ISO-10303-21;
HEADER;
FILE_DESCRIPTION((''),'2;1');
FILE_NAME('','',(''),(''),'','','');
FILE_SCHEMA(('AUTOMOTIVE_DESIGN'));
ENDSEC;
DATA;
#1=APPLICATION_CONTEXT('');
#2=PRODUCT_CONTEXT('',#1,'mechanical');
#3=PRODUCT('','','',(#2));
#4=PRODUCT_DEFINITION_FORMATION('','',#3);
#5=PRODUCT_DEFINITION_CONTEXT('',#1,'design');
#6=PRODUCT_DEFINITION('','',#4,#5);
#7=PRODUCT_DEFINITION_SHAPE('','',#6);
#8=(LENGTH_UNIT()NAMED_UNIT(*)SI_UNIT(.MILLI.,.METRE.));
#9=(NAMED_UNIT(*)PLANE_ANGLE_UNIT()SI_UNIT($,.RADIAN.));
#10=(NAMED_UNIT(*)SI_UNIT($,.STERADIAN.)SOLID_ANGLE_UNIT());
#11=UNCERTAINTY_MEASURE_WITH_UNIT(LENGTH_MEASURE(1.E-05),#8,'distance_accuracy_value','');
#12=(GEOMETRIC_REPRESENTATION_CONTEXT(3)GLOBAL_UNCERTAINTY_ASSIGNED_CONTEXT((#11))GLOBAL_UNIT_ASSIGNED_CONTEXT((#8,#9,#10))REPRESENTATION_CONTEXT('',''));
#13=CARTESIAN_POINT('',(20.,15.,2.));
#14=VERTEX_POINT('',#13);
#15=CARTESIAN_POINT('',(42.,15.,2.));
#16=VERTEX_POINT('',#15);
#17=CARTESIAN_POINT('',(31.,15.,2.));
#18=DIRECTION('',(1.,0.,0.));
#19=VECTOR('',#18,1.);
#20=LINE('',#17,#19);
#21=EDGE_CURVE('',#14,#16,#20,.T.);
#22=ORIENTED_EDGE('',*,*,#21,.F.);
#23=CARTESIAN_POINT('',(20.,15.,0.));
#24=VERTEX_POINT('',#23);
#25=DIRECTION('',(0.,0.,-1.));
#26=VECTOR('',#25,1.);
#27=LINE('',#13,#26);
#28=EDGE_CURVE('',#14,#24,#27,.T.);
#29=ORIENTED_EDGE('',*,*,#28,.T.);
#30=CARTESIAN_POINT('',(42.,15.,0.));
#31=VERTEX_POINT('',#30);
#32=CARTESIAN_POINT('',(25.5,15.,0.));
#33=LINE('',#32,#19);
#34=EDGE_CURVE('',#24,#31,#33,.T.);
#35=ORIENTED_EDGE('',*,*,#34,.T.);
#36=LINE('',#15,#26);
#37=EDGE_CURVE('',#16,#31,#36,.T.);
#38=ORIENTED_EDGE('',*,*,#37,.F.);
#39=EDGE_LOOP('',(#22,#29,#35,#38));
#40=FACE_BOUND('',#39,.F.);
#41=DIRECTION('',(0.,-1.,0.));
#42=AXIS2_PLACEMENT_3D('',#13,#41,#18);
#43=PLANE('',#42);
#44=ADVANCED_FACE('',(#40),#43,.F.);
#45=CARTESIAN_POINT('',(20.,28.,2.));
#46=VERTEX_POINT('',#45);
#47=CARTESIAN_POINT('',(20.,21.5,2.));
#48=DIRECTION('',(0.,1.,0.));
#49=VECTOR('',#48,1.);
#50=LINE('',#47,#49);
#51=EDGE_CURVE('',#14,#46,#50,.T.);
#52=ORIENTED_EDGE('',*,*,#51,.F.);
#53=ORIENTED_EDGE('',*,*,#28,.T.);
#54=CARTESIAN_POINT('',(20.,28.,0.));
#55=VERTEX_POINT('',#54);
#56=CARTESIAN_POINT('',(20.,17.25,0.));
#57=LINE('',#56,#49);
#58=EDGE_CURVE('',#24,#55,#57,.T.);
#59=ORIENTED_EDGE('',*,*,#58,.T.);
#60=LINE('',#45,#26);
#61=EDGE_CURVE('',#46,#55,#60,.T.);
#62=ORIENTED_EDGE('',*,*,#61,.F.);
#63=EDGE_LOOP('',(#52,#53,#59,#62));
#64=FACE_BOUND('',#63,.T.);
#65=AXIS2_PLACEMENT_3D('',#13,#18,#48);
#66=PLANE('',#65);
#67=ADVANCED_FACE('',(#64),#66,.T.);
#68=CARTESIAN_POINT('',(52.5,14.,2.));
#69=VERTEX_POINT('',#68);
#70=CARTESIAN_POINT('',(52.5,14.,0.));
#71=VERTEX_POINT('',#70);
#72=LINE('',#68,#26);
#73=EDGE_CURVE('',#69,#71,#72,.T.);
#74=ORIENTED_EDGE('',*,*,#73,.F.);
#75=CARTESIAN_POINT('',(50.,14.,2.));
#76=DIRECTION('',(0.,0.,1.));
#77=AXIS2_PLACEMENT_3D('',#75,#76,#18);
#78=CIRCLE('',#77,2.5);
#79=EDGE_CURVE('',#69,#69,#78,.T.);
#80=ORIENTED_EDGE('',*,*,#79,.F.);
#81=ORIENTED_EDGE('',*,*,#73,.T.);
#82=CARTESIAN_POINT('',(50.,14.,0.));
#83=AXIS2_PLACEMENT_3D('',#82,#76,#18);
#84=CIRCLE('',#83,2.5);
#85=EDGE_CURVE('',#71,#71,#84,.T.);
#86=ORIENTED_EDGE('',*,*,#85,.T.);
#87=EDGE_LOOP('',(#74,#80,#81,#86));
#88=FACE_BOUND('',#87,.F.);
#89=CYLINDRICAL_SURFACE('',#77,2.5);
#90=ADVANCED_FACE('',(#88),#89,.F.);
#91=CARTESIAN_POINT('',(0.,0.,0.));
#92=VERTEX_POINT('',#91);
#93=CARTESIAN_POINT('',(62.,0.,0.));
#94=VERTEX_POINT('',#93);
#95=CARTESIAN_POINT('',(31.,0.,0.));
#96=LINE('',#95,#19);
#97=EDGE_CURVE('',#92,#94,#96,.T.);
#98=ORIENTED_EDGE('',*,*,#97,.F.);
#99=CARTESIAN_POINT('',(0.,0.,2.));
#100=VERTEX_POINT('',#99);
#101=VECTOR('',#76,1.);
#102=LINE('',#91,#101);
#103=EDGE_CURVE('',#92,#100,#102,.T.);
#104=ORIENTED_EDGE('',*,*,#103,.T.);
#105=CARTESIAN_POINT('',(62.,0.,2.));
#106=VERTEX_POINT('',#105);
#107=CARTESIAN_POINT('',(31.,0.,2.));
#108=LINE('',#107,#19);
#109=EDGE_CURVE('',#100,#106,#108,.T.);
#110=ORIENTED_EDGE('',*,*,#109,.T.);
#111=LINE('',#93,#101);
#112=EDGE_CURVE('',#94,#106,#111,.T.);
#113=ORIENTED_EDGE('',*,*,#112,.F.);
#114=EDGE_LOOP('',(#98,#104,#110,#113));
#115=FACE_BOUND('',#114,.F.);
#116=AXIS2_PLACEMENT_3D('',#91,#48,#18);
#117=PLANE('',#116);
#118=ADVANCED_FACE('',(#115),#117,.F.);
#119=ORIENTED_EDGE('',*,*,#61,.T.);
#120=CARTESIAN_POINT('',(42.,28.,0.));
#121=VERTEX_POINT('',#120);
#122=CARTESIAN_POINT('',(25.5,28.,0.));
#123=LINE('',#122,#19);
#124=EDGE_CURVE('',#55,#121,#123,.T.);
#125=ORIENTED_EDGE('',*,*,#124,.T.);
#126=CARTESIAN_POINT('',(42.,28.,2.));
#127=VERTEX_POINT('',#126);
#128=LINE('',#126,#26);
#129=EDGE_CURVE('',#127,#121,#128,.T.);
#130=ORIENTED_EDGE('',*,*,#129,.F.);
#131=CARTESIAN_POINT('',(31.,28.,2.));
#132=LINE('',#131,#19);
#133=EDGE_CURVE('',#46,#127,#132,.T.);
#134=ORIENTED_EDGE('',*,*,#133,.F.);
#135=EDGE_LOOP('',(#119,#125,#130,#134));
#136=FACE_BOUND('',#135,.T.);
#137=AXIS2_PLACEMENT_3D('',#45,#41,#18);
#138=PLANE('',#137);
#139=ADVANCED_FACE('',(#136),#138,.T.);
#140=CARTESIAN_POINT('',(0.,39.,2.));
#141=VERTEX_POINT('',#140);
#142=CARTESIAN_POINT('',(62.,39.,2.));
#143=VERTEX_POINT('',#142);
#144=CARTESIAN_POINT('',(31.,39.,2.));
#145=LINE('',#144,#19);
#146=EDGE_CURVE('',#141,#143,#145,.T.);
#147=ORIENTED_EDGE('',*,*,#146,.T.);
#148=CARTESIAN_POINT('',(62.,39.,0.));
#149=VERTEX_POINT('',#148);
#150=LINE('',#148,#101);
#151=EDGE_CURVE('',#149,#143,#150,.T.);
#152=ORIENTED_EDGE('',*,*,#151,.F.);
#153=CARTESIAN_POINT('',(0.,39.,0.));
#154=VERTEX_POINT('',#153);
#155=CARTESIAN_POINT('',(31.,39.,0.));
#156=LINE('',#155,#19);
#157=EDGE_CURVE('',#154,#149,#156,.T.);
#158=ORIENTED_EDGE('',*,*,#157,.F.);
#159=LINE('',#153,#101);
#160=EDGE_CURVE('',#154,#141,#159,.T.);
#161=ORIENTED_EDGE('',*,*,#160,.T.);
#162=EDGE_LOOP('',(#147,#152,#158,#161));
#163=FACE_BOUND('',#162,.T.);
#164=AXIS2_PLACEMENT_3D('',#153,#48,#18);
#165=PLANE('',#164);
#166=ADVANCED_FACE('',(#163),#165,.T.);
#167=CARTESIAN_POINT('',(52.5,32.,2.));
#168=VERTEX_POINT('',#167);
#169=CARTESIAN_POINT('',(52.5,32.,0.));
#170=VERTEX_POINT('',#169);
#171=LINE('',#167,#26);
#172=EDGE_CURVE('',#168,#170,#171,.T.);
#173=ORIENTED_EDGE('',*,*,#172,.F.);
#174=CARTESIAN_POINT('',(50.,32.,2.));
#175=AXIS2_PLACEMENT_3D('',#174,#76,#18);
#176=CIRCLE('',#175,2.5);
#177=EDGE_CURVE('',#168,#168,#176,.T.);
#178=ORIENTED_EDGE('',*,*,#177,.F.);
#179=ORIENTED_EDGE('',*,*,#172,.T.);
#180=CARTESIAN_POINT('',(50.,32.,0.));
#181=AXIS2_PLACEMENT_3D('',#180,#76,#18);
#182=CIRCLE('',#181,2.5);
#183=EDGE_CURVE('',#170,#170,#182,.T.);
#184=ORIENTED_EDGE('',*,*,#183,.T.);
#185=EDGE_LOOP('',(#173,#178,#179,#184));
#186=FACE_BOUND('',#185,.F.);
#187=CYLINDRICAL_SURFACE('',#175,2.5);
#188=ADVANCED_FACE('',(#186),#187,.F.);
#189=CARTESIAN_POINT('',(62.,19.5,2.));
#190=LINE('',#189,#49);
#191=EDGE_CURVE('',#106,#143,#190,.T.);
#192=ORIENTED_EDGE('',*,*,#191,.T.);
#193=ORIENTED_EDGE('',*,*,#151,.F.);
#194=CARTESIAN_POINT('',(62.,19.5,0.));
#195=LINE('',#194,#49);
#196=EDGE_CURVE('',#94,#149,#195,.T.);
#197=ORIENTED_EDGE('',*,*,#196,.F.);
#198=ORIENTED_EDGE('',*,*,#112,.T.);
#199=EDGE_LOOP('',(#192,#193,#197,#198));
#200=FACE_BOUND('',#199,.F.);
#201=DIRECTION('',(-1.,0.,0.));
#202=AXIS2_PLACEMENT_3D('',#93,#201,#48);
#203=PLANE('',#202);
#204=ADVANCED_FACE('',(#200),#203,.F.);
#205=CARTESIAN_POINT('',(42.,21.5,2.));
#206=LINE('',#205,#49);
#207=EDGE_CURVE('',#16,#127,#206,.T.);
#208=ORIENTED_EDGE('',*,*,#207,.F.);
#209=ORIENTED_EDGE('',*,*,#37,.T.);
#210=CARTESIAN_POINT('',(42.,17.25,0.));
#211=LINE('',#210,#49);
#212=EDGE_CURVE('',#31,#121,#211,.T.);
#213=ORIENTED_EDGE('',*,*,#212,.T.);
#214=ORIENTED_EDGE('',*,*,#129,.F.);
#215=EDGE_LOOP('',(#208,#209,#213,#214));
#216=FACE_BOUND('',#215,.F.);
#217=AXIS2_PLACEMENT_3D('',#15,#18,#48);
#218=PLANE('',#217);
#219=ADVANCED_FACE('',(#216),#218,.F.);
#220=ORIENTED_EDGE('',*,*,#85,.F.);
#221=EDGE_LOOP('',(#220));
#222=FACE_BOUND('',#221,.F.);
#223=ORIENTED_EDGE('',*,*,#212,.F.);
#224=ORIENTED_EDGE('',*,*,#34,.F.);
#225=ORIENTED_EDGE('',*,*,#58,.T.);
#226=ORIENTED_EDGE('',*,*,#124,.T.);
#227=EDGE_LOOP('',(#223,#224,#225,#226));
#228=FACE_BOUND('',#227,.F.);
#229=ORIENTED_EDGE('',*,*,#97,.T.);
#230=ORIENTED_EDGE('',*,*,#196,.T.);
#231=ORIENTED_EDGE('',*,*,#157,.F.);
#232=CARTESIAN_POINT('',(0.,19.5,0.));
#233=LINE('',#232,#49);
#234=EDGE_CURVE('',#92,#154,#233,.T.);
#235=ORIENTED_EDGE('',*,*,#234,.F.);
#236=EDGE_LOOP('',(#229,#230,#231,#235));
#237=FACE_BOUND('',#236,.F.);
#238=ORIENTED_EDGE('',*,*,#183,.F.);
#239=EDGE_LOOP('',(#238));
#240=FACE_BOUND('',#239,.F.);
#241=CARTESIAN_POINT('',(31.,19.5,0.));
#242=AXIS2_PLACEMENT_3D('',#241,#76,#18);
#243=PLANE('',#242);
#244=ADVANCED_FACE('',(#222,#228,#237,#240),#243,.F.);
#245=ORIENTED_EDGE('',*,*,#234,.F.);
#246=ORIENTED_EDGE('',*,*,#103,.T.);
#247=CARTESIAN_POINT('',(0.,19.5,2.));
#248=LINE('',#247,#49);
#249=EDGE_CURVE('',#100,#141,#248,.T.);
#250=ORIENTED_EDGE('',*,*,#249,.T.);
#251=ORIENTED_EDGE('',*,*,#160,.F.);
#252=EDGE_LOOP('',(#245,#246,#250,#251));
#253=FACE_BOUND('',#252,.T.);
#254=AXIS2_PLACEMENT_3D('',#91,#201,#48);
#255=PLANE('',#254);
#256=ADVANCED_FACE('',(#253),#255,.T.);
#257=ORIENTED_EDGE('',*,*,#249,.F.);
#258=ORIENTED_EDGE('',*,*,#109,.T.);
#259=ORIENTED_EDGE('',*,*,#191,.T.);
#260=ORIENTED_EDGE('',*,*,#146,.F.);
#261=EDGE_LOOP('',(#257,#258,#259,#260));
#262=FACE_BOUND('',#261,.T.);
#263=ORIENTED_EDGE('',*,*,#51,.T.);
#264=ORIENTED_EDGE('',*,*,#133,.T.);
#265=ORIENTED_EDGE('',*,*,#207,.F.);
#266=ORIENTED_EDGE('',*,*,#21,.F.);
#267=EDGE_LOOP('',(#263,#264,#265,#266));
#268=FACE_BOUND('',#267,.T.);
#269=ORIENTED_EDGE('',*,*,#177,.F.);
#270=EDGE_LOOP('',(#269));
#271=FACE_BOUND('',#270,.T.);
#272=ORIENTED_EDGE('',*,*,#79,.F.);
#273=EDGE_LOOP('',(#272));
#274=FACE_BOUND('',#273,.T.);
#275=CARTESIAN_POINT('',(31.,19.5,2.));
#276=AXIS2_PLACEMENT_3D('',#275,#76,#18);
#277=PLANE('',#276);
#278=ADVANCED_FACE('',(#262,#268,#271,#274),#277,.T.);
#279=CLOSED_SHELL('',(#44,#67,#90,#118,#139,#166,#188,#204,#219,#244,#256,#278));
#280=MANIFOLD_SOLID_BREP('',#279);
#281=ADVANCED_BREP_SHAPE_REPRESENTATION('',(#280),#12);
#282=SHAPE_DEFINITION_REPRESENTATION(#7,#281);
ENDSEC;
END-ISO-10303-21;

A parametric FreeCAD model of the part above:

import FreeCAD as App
import Part
import Sketcher
from FreeCAD import Vector

doc = App.newDocument("Part")
body = doc.addObject("PartDesign::Body", "Body")

sketch1 = doc.addObject("Sketcher::SketchObject", "Sketch")
body.addObject(sketch1)
sketch1.AttachmentSupport = (doc.XY_Plane, [""])
sketch1.MapMode = "FlatFace"
sketch1.addGeometry([
    Part.LineSegment(Vector(0, 39, 0), Vector(0, 0, 0)),
    Part.LineSegment(Vector(0, 0, 0), Vector(62, 0, 0)),
    Part.LineSegment(Vector(62, 0, 0), Vector(62, 39, 0)),
    Part.LineSegment(Vector(62, 39, 0), Vector(0, 39, 0)),
], False)
sketch1.addConstraint([
    Sketcher.Constraint("Coincident", 0, 2, 1, 1),
    Sketcher.Constraint("Coincident", 1, 2, 2, 1),
    Sketcher.Constraint("Coincident", 2, 2, 3, 1),
    Sketcher.Constraint("Coincident", 3, 2, 0, 1),
    Sketcher.Constraint("Vertical", 0),
    Sketcher.Constraint("Horizontal", 1),
    Sketcher.Constraint("Vertical", 2),
    Sketcher.Constraint("Horizontal", 3),
    Sketcher.Constraint("Coincident", 0, 2, -1, 1),
    Sketcher.Constraint("DistanceX", 1, 1, 1, 2, 62.0),
    Sketcher.Constraint("DistanceY", 0, 2, 0, 1, 39.0),
])
pad1 = doc.addObject("PartDesign::Pad", "Pad")
body.addObject(pad1)
pad1.Profile = sketch1
pad1.Length = 2

sketch2 = doc.addObject("Sketcher::SketchObject", "Sketch001")
body.addObject(sketch2)
sketch2.AttachmentSupport = (doc.XY_Plane, [""])
sketch2.MapMode = "FlatFace"
sketch2.AttachmentOffset = App.Placement(Vector(0, 0, 2), App.Rotation())
sketch2.addGeometry([
    Part.LineSegment(Vector(20, 28, 0), Vector(20, 15, 0)),
    Part.LineSegment(Vector(20, 15, 0), Vector(42, 15, 0)),
    Part.LineSegment(Vector(42, 15, 0), Vector(42, 28, 0)),
    Part.LineSegment(Vector(42, 28, 0), Vector(20, 28, 0)),
], False)
sketch2.addConstraint([
    Sketcher.Constraint("Coincident", 0, 2, 1, 1),
    Sketcher.Constraint("Coincident", 1, 2, 2, 1),
    Sketcher.Constraint("Coincident", 2, 2, 3, 1),
    Sketcher.Constraint("Coincident", 3, 2, 0, 1),
    Sketcher.Constraint("Vertical", 0),
    Sketcher.Constraint("Horizontal", 1),
    Sketcher.Constraint("Vertical", 2),
    Sketcher.Constraint("Horizontal", 3),
    Sketcher.Constraint("DistanceX", 1, 1, 1, 2, 22.0),
    Sketcher.Constraint("DistanceY", 0, 2, 0, 1, 13.0),
    Sketcher.Constraint("DistanceX", -1, 1, 0, 2, 20.0),
    Sketcher.Constraint("DistanceY", -1, 1, 0, 2, 15.0),
])
pocket1 = doc.addObject("PartDesign::Pocket", "Pocket")
body.addObject(pocket1)
pocket1.Profile = sketch2
pocket1.Type = "ThroughAll"

sketch3 = doc.addObject("Sketcher::SketchObject", "Sketch002")
body.addObject(sketch3)
sketch3.AttachmentSupport = (doc.XY_Plane, [""])
sketch3.MapMode = "FlatFace"
sketch3.AttachmentOffset = App.Placement(Vector(0, 0, 2), App.Rotation())
sketch3.addGeometry(Part.Circle(Vector(50, 32, 0), Vector(0, 0, 1), 2.5), False)
sketch3.addConstraint([
    Sketcher.Constraint("Diameter", 0, 5.0),
    Sketcher.Constraint("DistanceX", -1, 1, 0, 3, 50.0),
    Sketcher.Constraint("DistanceY", -1, 1, 0, 3, 32.0),
])
pocket2 = doc.addObject("PartDesign::Pocket", "Pocket001")
body.addObject(pocket2)
pocket2.Profile = sketch3
pocket2.Length = 5

sketch4 = doc.addObject("Sketcher::SketchObject", "Sketch003")
body.addObject(sketch4)
sketch4.AttachmentSupport = (doc.XY_Plane, [""])
sketch4.MapMode = "FlatFace"
sketch4.AttachmentOffset = App.Placement(Vector(0, 0, 2), App.Rotation())
sketch4.addGeometry(Part.Circle(Vector(50, 14, 0), Vector(0, 0, 1), 2.5), False)
sketch4.addConstraint([
    Sketcher.Constraint("Diameter", 0, 5.0),
    Sketcher.Constraint("DistanceX", -1, 1, 0, 3, 50.0),
    Sketcher.Constraint("DistanceY", -1, 1, 0, 3, 14.0),
])
pocket3 = doc.addObject("PartDesign::Pocket", "Pocket002")
body.addObject(pocket3)
pocket3.Profile = sketch4
pocket3.Length = 5

doc.recompute()
